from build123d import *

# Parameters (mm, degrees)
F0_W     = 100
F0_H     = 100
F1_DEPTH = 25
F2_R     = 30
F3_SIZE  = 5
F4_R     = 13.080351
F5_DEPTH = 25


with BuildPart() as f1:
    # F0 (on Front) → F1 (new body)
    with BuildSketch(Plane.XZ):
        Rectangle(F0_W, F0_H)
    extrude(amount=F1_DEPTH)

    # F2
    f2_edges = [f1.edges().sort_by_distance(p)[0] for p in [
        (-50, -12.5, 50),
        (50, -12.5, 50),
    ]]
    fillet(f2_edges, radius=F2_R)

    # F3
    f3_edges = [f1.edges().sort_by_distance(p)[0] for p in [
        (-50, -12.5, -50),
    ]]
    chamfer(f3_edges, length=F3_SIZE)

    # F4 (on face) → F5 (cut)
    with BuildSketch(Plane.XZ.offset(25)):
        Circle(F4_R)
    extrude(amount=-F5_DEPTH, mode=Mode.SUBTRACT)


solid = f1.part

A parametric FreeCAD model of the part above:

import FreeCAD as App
import Part
import Sketcher

V = App.Vector


def edges_at(feature, points):
    """Names of the edges that pass closest to the given points."""
    edges = feature.Shape.Edges
    near = lambda p: min(range(len(edges)), key=lambda i: edges[i].distToShape(Part.Vertex(*p))[0])
    return sorted({f"Edge{near(p) + 1}" for p in points})

doc = App.newDocument("Part")
body = doc.addObject("PartDesign::Body", "Body")

# Sketch on XZ plane
sketch1 = body.newObject("Sketcher::SketchObject", "Sketch")
sketch1.AttachmentSupport = (doc.getObject("XZ_Plane"), [""])
sketch1.MapMode = "FlatFace"
sketch1.addGeometry([
    Part.LineSegment(V(-50, 50, 0), V(-50, -50, 0)),
    Part.LineSegment(V(-50, -50, 0), V(50, -50, 0)),
    Part.LineSegment(V(50, -50, 0), V(50, 50, 0)),
    Part.LineSegment(V(50, 50, 0), V(-50, 50, 0)),
], False)
sketch1.addConstraint([
    Sketcher.Constraint("Coincident", 0, 2, 1, 1),
    Sketcher.Constraint("Coincident", 1, 2, 2, 1),
    Sketcher.Constraint("Coincident", 2, 2, 3, 1),
    Sketcher.Constraint("Coincident", 3, 2, 0, 1),
    Sketcher.Constraint("Vertical", 0),
    Sketcher.Constraint("Horizontal", 1),
    Sketcher.Constraint("Vertical", 2),
    Sketcher.Constraint("Horizontal", 3),
    Sketcher.Constraint("Symmetric", 0, 2, 2, 2, -1, 1),
    Sketcher.Constraint("Equal", 3, 0),
    Sketcher.Constraint("DistanceX", 1, 1, 1, 2, 100.0),
])
pad1 = body.newObject("PartDesign::Pad", "Pad")
pad1.Profile = sketch1
pad1.Length = 25
doc.recompute()

fillet = body.newObject("PartDesign::Fillet", "Fillet")
fillet.Base = (pad1, edges_at(pad1, [(-50, -12.5, 50), (50, -12.5, 50)]))
fillet.Radius = 30
doc.recompute()

chamfer = body.newObject("PartDesign::Chamfer", "Chamfer")
chamfer.Base = (fillet, edges_at(fillet, [(-50, -12.5, -50)]))
chamfer.Size = 5

# Sketch on XZ plane
sketch2 = body.newObject("Sketcher::SketchObject", "Sketch001")
sketch2.AttachmentSupport = (doc.getObject("XZ_Plane"), [""])
sketch2.MapMode = "FlatFace"
sketch2.AttachmentOffset = App.Placement(V(0, 0, 25), App.Rotation())
sketch2.addGeometry(Part.Circle(V(0, 0, 0), V(0, 0, 1), 13), False)
sketch2.addConstraint([
    Sketcher.Constraint("Coincident", 0, 3, -1, 1),
    Sketcher.Constraint("Diameter", 0, 26.160702),
])
pocket1 = body.newObject("PartDesign::Pocket", "Pocket")
pocket1.Profile = sketch2
pocket1.Length = 25

doc.recompute()
